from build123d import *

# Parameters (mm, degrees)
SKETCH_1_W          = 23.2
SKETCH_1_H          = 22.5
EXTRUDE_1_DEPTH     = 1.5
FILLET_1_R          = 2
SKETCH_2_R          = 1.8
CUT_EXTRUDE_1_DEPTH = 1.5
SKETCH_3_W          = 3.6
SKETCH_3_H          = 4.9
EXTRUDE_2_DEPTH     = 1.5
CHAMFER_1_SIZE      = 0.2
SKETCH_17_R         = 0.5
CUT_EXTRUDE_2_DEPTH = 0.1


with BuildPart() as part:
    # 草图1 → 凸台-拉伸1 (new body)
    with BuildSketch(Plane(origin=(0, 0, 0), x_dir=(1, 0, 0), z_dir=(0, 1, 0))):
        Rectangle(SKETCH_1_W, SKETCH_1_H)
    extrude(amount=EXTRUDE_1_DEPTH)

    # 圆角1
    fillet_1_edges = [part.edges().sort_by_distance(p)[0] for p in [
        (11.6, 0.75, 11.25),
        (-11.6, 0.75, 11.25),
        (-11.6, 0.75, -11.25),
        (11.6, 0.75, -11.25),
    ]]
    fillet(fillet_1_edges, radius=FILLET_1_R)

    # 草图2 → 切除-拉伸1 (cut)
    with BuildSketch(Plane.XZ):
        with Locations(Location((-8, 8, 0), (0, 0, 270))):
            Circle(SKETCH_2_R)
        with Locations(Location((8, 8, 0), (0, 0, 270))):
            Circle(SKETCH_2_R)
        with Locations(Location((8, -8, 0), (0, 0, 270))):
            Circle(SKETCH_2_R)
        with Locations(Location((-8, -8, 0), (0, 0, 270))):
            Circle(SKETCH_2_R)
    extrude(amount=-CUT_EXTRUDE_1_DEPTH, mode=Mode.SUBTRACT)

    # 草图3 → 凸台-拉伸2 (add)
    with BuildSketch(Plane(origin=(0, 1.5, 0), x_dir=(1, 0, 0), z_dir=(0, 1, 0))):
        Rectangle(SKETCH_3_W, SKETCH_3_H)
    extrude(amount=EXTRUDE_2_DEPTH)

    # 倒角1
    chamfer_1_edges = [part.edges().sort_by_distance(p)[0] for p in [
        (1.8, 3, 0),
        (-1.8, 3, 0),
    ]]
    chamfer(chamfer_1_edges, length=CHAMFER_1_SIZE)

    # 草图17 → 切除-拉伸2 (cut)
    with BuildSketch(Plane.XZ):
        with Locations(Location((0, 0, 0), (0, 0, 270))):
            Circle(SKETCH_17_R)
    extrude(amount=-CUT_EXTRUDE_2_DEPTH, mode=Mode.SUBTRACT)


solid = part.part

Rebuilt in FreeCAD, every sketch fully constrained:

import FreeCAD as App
import Part
import Sketcher


def edges_at(feature, points):
    """Names of the edges that pass closest to the given points."""
    edges = feature.Shape.Edges
    near = lambda p: min(range(len(edges)), key=lambda i: edges[i].distToShape(Part.Vertex(*p))[0])
    return sorted({f"Edge{near(p) + 1}" for p in points})

doc = App.newDocument("Part")
body = doc.addObject("PartDesign::Body", "Body")

# Sketch on XZ plane
sketch1 = body.newObject("Sketcher::SketchObject", "Sketch")
sketch1.AttachmentSupport = (doc.getObject("XZ_Plane"), [""])
sketch1.MapMode = "FlatFace"
sketch1.addGeometry([
    Part.LineSegment(App.Vector(-12, -11, 0), App.Vector(-12, 11, 0)),
    Part.LineSegment(App.Vector(-12, 11, 0), App.Vector(12, 11, 0)),
    Part.LineSegment(App.Vector(12, 11, 0), App.Vector(12, -11, 0)),
    Part.LineSegment(App.Vector(12, -11, 0), App.Vector(-12, -11, 0)),
], False)
sketch1.addConstraint([
    Sketcher.Constraint("Coincident", 0, 2, 1, 1),
    Sketcher.Constraint("Coincident", 1, 2, 2, 1),
    Sketcher.Constraint("Coincident", 2, 2, 3, 1),
    Sketcher.Constraint("Coincident", 3, 2, 0, 1),
    Sketcher.Constraint("Vertical", 0),
    Sketcher.Constraint("Horizontal", 1),
    Sketcher.Constraint("Vertical", 2),
    Sketcher.Constraint("Horizontal", 3),
    Sketcher.Constraint("Symmetric", 0, 2, 2, 2, -1, 1),
    Sketcher.Constraint("DistanceX", 1, 1, 1, 2, 23.2),
    Sketcher.Constraint("DistanceY", 0, 1, 0, 2, 22.5),
])
pad1 = body.newObject("PartDesign::Pad", "Pad")
pad1.Profile = sketch1
pad1.Length = 1.5
pad1.Reversed = True
doc.recompute()

fillet = body.newObject("PartDesign::Fillet", "Fillet")
fillet.Base = (pad1, edges_at(pad1, [
    (11.6, 0.75, 11.25),
    (-11.6, 0.75, 11.25),
    (-11.6, 0.75, -11.25),
    (11.6, 0.75, -11.25),
]))
fillet.Radius = 2

# Sketch on XZ plane
sketch2 = body.newObject("Sketcher::SketchObject", "Sketch001")
sketch2.AttachmentSupport = (doc.getObject("XZ_Plane"), [""])
sketch2.MapMode = "FlatFace"
sketch2.addGeometry([
    Part.Circle(App.Vector(-8, 8, 0), App.Vector(0, 0, 1), 1.8),
    Part.Circle(App.Vector(8, 8, 0), App.Vector(0, 0, 1), 1.8),
    Part.Circle(App.Vector(8, -8, 0), App.Vector(0, 0, 1), 1.8),
    Part.Circle(App.Vector(-8, -8, 0), App.Vector(0, 0, 1), 1.8),
], False)
sketch2.addConstraint([
    Sketcher.Constraint("Equal", 0, 1),
    Sketcher.Constraint("Equal", 1, 2),
    Sketcher.Constraint("Equal", 2, 3),
    Sketcher.Constraint("Symmetric", 0, 3, 2, 3, -1, 1),
    Sketcher.Constraint("Symmetric", 1, 3, 3, 3, -1, 1),
    Sketcher.Constraint("Symmetric", 0, 3, 1, 3, -2),
    Sketcher.Constraint("Diameter", 0, 3.6),
    Sketcher.Constraint("DistanceX", 0, 3, -1, 1, 8.0),
    Sketcher.Constraint("DistanceY", -1, 1, 0, 3, 8.0),
])
pocket1 = body.newObject("PartDesign::Pocket", "Pocket")
pocket1.Profile = sketch2
pocket1.Length = 1.5

# Sketch on XZ plane
sketch3 = body.newObject("Sketcher::SketchObject", "Sketch002")
sketch3.AttachmentSupport = (doc.getObject("XZ_Plane"), [""])
sketch3.MapMode = "FlatFace"
sketch3.AttachmentOffset = App.Placement(App.Vector(0, 0, -1.5), App.Rotation())
sketch3.addGeometry([
    Part.LineSegment(App.Vector(-1.8, -2.5, 0), App.Vector(-1.8, 2.5, 0)),
    Part.LineSegment(App.Vector(-1.8, 2.5, 0), App.Vector(1.8, 2.5, 0)),
    Part.LineSegment(App.Vector(1.8, 2.5, 0), App.Vector(1.8, -2.5, 0)),
    Part.LineSegment(App.Vector(1.8, -2.5, 0), App.Vector(-1.8, -2.5, 0)),
], False)
sketch3.addConstraint([
    Sketcher.Constraint("Coincident", 0, 2, 1, 1),
    Sketcher.Constraint("Coincident", 1, 2, 2, 1),
    Sketcher.Constraint("Coincident", 2, 2, 3, 1),
    Sketcher.Constraint("Coincident", 3, 2, 0, 1),
    Sketcher.Constraint("Vertical", 0),
    Sketcher.Constraint("Horizontal", 1),
    Sketcher.Constraint("Vertical", 2),
    Sketcher.Constraint("Horizontal", 3),
    Sketcher.Constraint("Symmetric", 0, 2, 2, 2, -1, 1),
    Sketcher.Constraint("DistanceX", 1, 1, 1, 2, 3.6),
    Sketcher.Constraint("DistanceY", 0, 1, 0, 2, 4.9),
])
pad2 = body.newObject("PartDesign::Pad", "Pad001")
pad2.Profile = sketch3
pad2.Length = 1.5
pad2.Reversed = True
doc.recompute()

chamfer = body.newObject("PartDesign::Chamfer", "Chamfer")
chamfer.Base = (pad2, edges_at(pad2, [(1.8, 3, 0), (-1.8, 3, 0)]))
chamfer.Size = 0.2

# Sketch on XZ plane
sketch4 = body.newObject("Sketcher::SketchObject", "Sketch003")
sketch4.AttachmentSupport = (doc.getObject("XZ_Plane"), [""])
sketch4.MapMode = "FlatFace"
sketch4.addGeometry(Part.Circle(App.Vector(0, 0, 0), App.Vector(0, 0, 1), 0.5), False)
sketch4.addConstraint([
    Sketcher.Constraint("Coincident", 0, 3, -1, 1),
    Sketcher.Constraint("Diameter", 0, 1.0),
])
pocket2 = body.newObject("PartDesign::Pocket", "Pocket001")
pocket2.Profile = sketch4
pocket2.Length = 0.1

doc.recompute()
